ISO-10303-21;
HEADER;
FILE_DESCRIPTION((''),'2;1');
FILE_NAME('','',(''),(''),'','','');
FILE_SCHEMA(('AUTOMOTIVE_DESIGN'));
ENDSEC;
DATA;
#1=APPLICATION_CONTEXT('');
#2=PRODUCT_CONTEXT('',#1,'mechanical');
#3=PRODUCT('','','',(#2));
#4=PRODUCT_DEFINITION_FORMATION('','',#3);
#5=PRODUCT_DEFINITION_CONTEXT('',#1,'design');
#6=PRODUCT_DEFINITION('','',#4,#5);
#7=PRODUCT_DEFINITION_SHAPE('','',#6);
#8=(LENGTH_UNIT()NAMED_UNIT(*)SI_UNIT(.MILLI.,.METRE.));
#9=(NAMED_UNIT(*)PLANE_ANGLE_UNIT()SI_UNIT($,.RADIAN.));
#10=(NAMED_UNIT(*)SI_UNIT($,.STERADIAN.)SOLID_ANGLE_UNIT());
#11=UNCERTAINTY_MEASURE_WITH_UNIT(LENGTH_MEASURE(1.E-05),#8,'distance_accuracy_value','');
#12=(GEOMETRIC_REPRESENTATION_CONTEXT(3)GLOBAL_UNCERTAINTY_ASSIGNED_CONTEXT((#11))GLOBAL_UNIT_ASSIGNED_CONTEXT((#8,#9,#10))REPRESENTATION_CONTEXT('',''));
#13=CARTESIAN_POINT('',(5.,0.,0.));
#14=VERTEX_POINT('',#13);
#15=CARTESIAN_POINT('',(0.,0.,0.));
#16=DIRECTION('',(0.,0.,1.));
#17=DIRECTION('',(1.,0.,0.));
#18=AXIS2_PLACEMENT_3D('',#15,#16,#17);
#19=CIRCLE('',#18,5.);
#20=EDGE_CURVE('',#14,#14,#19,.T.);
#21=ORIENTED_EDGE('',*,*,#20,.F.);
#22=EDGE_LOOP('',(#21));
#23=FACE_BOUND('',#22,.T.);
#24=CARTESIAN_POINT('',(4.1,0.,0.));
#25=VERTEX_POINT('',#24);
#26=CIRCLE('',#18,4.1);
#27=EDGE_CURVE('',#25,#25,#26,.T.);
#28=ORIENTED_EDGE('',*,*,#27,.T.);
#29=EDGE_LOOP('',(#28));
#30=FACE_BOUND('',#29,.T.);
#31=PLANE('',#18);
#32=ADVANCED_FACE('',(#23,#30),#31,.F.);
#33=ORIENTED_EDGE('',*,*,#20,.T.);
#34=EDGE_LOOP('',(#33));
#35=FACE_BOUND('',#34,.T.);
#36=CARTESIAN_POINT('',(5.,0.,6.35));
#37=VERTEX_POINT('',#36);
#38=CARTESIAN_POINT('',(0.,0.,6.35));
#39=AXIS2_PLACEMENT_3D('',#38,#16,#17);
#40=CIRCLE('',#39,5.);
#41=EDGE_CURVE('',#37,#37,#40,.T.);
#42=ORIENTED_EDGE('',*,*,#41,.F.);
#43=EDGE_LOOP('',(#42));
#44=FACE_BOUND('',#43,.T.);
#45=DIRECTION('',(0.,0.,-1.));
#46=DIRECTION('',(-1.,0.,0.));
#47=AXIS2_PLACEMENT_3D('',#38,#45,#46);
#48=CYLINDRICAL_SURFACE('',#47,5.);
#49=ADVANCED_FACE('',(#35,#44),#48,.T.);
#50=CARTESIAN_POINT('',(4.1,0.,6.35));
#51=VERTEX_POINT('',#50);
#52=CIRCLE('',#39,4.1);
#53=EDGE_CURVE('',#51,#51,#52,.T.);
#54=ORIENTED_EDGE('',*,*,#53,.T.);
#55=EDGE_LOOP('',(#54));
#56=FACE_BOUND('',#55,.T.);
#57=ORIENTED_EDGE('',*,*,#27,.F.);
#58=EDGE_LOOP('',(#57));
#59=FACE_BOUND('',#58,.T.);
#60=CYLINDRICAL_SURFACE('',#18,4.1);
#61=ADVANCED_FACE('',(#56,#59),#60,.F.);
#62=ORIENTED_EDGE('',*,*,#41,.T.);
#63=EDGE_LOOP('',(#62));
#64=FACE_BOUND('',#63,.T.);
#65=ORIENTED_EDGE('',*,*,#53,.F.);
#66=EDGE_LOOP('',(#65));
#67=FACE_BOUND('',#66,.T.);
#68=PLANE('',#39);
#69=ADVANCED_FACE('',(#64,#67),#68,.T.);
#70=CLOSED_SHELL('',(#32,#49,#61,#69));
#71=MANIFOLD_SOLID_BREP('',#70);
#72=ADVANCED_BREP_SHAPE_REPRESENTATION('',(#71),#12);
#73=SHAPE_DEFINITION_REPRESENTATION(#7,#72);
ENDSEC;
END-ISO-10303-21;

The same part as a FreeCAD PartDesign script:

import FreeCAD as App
import Part
import Sketcher
from FreeCAD import Vector

doc = App.newDocument("Part")
body = doc.addObject("PartDesign::Body", "Body")

# Sketch on XY plane
sketch1 = doc.addObject("Sketcher::SketchObject", "Sketch")
body.addObject(sketch1)
sketch1.AttachmentSupport = (doc.XY_Plane, [""])
sketch1.MapMode = "FlatFace"
sketch1.addGeometry(Part.Circle(Vector(0, 0, 0), Vector(0, 0, 1), 5), False)
sketch1.addConstraint([
    Sketcher.Constraint("Coincident", 0, 3, -1, 1),
    Sketcher.Constraint("Diameter", 0, 10.0),
])
pad1 = doc.addObject("PartDesign::Pad", "Pad")
body.addObject(pad1)
pad1.Profile = sketch1
pad1.Length = 6.35

# Sketch on XY plane
sketch2 = doc.addObject("Sketcher::SketchObject", "Sketch001")
body.addObject(sketch2)
sketch2.AttachmentSupport = (doc.XY_Plane, [""])
sketch2.MapMode = "FlatFace"
sketch2.AttachmentOffset = App.Placement(Vector(0, 0, 6.35), App.Rotation())
sketch2.addGeometry(Part.Circle(Vector(0, 0, 0), Vector(0, 0, 1), 4.1), False)
sketch2.addConstraint([
    Sketcher.Constraint("Coincident", 0, 3, -1, 1),
    Sketcher.Constraint("Diameter", 0, 8.2),
])
pocket1 = doc.addObject("PartDesign::Pocket", "Pocket")
body.addObject(pocket1)
pocket1.Profile = sketch2
pocket1.Type = "ThroughAll"

doc.recompute()
